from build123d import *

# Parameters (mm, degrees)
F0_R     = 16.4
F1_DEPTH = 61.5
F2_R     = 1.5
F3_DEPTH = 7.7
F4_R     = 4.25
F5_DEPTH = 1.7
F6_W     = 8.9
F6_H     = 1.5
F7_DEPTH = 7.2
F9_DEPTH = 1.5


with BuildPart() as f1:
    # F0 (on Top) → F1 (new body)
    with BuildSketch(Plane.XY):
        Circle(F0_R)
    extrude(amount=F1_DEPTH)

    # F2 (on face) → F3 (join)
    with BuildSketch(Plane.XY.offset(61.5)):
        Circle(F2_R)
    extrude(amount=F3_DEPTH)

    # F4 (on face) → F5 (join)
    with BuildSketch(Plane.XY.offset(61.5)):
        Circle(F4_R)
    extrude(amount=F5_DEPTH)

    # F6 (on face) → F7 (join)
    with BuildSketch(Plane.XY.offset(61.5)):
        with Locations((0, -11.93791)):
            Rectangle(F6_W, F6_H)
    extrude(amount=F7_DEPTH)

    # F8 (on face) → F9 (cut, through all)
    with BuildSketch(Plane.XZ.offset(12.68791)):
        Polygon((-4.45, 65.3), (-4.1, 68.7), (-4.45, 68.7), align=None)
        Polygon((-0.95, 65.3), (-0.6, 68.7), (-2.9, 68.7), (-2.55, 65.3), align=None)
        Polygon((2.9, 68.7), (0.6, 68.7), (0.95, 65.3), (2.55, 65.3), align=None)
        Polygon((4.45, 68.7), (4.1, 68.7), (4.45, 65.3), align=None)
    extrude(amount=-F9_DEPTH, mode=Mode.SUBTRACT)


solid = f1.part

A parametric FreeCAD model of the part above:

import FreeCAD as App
import Part
import Sketcher
from FreeCAD import Vector
Q = App.Units.Quantity

doc = App.newDocument("Part")
body = doc.addObject("PartDesign::Body", "Body")

# Sketch on XY plane
sketch1 = body.newObject("Sketcher::SketchObject", "Sketch")
sketch1.AttachmentSupport = (doc.getObject("XY_Plane"), [""])
sketch1.MapMode = "FlatFace"
sketch1.addGeometry(Part.Circle(Vector(0, 0, 0), Vector(0, 0, 1), 16), False)
sketch1.addConstraint(Sketcher.Constraint("Coincident", 0, 3, -1, 1))
sketch1.addConstraint(Sketcher.Constraint("Diameter", 0, Q("32.8 mm")))
pad1 = body.newObject("PartDesign::Pad", "Pad")
pad1.Profile = sketch1
pad1.Length = 61.5

# Sketch on XY plane
sketch2 = body.newObject("Sketcher::SketchObject", "Sketch001")
sketch2.AttachmentSupport = (doc.getObject("XY_Plane"), [""])
sketch2.MapMode = "FlatFace"
sketch2.AttachmentOffset = App.Placement(Vector(0, 0, 61.5), App.Rotation())
sketch2.addGeometry(Part.Circle(Vector(0, 0, 0), Vector(0, 0, 1), 1.5), False)
sketch2.addConstraint(Sketcher.Constraint("Coincident", 0, 3, -1, 1))
sketch2.addConstraint(Sketcher.Constraint("Diameter", 0, Q("3 mm")))
pad2 = body.newObject("PartDesign::Pad", "Pad001")
pad2.Profile = sketch2
pad2.Length = 7.7

# Sketch on XY plane
sketch3 = body.newObject("Sketcher::SketchObject", "Sketch002")
sketch3.AttachmentSupport = (doc.getObject("XY_Plane"), [""])
sketch3.MapMode = "FlatFace"
sketch3.AttachmentOffset = App.Placement(Vector(0, 0, 61.5), App.Rotation())
sketch3.addGeometry(Part.Circle(Vector(0, 0, 0), Vector(0, 0, 1), 4.2), False)
sketch3.addConstraint(Sketcher.Constraint("Coincident", 0, 3, -1, 1))
sketch3.addConstraint(Sketcher.Constraint("Diameter", 0, Q("8.5 mm")))
pad3 = body.newObject("PartDesign::Pad", "Pad002")
pad3.Profile = sketch3
pad3.Length = 1.7

# Sketch on XY plane
sketch4 = body.newObject("Sketcher::SketchObject", "Sketch003")
sketch4.AttachmentSupport = (doc.getObject("XY_Plane"), [""])
sketch4.MapMode = "FlatFace"
sketch4.AttachmentOffset = App.Placement(Vector(0, 0, 61.5), App.Rotation())
sketch4.addGeometry(Part.LineSegment(Vector(-4.5, -11.2, 0), Vector(-4.5, -12.7, 0)), False)
sketch4.addGeometry(Part.LineSegment(Vector(-4.5, -12.7, 0), Vector(4.5, -12.7, 0)), False)
sketch4.addGeometry(Part.LineSegment(Vector(4.5, -12.7, 0), Vector(4.5, -11.2, 0)), False)
sketch4.addGeometry(Part.LineSegment(Vector(4.5, -11.2, 0), Vector(-4.5, -11.2, 0)), False)
sketch4.addConstraint(Sketcher.Constraint("Coincident", 0, 2, 1, 1))
sketch4.addConstraint(Sketcher.Constraint("Coincident", 1, 2, 2, 1))
sketch4.addConstraint(Sketcher.Constraint("Coincident", 2, 2, 3, 1))
sketch4.addConstraint(Sketcher.Constraint("Coincident", 3, 2, 0, 1))
sketch4.addConstraint(Sketcher.Constraint("Vertical", 0))
sketch4.addConstraint(Sketcher.Constraint("Horizontal", 1))
sketch4.addConstraint(Sketcher.Constraint("Vertical", 2))
sketch4.addConstraint(Sketcher.Constraint("Horizontal", 3))
sketch4.addConstraint(Sketcher.Constraint("DistanceX", 1, 1, 1, 2, Q("8.9 mm")))
sketch4.addConstraint(Sketcher.Constraint("DistanceY", 0, 2, 0, 1, Q("1.5 mm")))
sketch4.addConstraint(Sketcher.Constraint("DistanceX", 0, 2, -1, 1, Q("4.45 mm")))
sketch4.addConstraint(Sketcher.Constraint("DistanceY", 0, 2, -1, 1, Q("12.68791 mm")))
pad4 = body.newObject("PartDesign::Pad", "Pad003")
pad4.Profile = sketch4
pad4.Length = 7.2

# Sketch on XZ plane
sketch5 = body.newObject("Sketcher::SketchObject", "Sketch004")
sketch5.AttachmentSupport = (doc.getObject("XZ_Plane"), [""])
sketch5.MapMode = "FlatFace"
sketch5.AttachmentOffset = App.Placement(Vector(0, 0, 12.68791), App.Rotation())
sketch5.addGeometry(Part.LineSegment(Vector(-4.45, 65.3, 0), Vector(-4.1, 68.7, 0)), False)
sketch5.addGeometry(Part.LineSegment(Vector(-4.1, 68.7, 0), Vector(-4.45, 68.7, 0)), False)
sketch5.addGeometry(Part.LineSegment(Vector(-4.45, 68.7, 0), Vector(-4.45, 65.3, 0)), False)
sketch5.addGeometry(Part.LineSegment(Vector(-0.95, 65.3, 0), Vector(-0.6, 68.7, 0)), False)
sketch5.addGeometry(Part.LineSegment(Vector(-0.6, 68.7, 0), Vector(-2.9, 68.7, 0)), False)
sketch5.addGeometry(Part.LineSegment(Vector(-2.9, 68.7, 0), Vector(-2.55, 65.3, 0)), False)
sketch5.addGeometry(Part.LineSegment(Vector(-2.55, 65.3, 0), Vector(-0.95, 65.3, 0)), False)
sketch5.addGeometry(Part.LineSegment(Vector(2.9, 68.7, 0), Vector(0.6, 68.7, 0)), False)
sketch5.addGeometry(Part.LineSegment(Vector(0.6, 68.7, 0), Vector(0.95, 65.3, 0)), False)
sketch5.addGeometry(Part.LineSegment(Vector(0.95, 65.3, 0), Vector(2.55, 65.3, 0)), False)
sketch5.addGeometry(Part.LineSegment(Vector(2.55, 65.3, 0), Vector(2.9, 68.7, 0)), False)
sketch5.addGeometry(Part.LineSegment(Vector(4.45, 68.7, 0), Vector(4.1, 68.7, 0)), False)
sketch5.addGeometry(Part.LineSegment(Vector(4.1, 68.7, 0), Vector(4.45, 65.3, 0)), False)
sketch5.addGeometry(Part.LineSegment(Vector(4.45, 65.3, 0), Vector(4.45, 68.7, 0)), False)
sketch5.addConstraint(Sketcher.Constraint("Coincident", 0, 2, 1, 1))
sketch5.addConstraint(Sketcher.Constraint("Coincident", 1, 2, 2, 1))
sketch5.addConstraint(Sketcher.Constraint("Coincident", 2, 2, 0, 1))
sketch5.addConstraint(Sketcher.Constraint("Coincident", 3, 2, 4, 1))
sketch5.addConstraint(Sketcher.Constraint("Coincident", 4, 2, 5, 1))
sketch5.addConstraint(Sketcher.Constraint("Coincident", 5, 2, 6, 1))
sketch5.addConstraint(Sketcher.Constraint("Coincident", 6, 2, 3, 1))
sketch5.addConstraint(Sketcher.Constraint("Coincident", 7, 2, 8, 1))
sketch5.addConstraint(Sketcher.Constraint("Coincident", 8, 2, 9, 1))
sketch5.addConstraint(Sketcher.Constraint("Coincident", 9, 2, 10, 1))
sketch5.addConstraint(Sketcher.Constraint("Coincident", 10, 2, 7, 1))
sketch5.addConstraint(Sketcher.Constraint("Coincident", 11, 2, 12, 1))
sketch5.addConstraint(Sketcher.Constraint("Coincident", 12, 2, 13, 1))
sketch5.addConstraint(Sketcher.Constraint("Coincident", 13, 2, 11, 1))
sketch5.addConstraint(Sketcher.Constraint("Horizontal", 1))
sketch5.addConstraint(Sketcher.Constraint("Vertical", 2))
sketch5.addConstraint(Sketcher.Constraint("Horizontal", 4))
sketch5.addConstraint(Sketcher.Constraint("Horizontal", 6))
sketch5.addConstraint(Sketcher.Constraint("Horizontal", 7))
sketch5.addConstraint(Sketcher.Constraint("Horizontal", 9))
sketch5.addConstraint(Sketcher.Constraint("Horizontal", 11))
sketch5.addConstraint(Sketcher.Constraint("Vertical", 13))
sketch5.addConstraint(Sketcher.Constraint("Symmetric", 3, 2, 7, 2, -2))
sketch5.addConstraint(Sketcher.Constraint("Symmetric", 6, 2, 8, 2, -2))
sketch5.addConstraint(Sketcher.Constraint("Symmetric", 0, 2, 11, 2, -2))
sketch5.addConstraint(Sketcher.Constraint("Symmetric", 2, 2, 12, 2, -2))
sketch5.addConstraint(Sketcher.Constraint("Parallel", 0, 3))
sketch5.addConstraint(Sketcher.Constraint("Parallel", 5, 8))
sketch5.addConstraint(Sketcher.Constraint("Parallel", 3, 10))
sketch5.addConstraint(Sketcher.Constraint("Horizontal", 1, 2, 3, 2))
sketch5.addConstraint(Sketcher.Constraint("Horizontal", 2, 2, 5, 2))
sketch5.addConstraint(Sketcher.Constraint("Equal", 4, 7))
sketch5.addConstraint(Sketcher.Constraint("DistanceX", 4, 2, 4, 1, Q("2.3 mm")))
sketch5.addConstraint(Sketcher.Constraint("DistanceX", 6, 1, 6, 2, Q("1.6 mm")))
sketch5.addConstraint(Sketcher.Constraint("DistanceY", 2, 2, 2, 1, Q("3.4 mm")))
sketch5.addConstraint(Sketcher.Constraint("DistanceX", 0, 2, -1, 1, Q("4.1 mm")))
sketch5.addConstraint(Sketcher.Constraint("DistanceY", -1, 1, 0, 2, Q("68.7 mm")))
sketch5.addConstraint(Sketcher.Constraint("DistanceX", 3, 2, -1, 1, Q("0.6 mm")))
pocket1 = body.newObject("PartDesign::Pocket", "Pocket")
pocket1.Profile = sketch5
pocket1.Length = 1.5

doc.recompute()
